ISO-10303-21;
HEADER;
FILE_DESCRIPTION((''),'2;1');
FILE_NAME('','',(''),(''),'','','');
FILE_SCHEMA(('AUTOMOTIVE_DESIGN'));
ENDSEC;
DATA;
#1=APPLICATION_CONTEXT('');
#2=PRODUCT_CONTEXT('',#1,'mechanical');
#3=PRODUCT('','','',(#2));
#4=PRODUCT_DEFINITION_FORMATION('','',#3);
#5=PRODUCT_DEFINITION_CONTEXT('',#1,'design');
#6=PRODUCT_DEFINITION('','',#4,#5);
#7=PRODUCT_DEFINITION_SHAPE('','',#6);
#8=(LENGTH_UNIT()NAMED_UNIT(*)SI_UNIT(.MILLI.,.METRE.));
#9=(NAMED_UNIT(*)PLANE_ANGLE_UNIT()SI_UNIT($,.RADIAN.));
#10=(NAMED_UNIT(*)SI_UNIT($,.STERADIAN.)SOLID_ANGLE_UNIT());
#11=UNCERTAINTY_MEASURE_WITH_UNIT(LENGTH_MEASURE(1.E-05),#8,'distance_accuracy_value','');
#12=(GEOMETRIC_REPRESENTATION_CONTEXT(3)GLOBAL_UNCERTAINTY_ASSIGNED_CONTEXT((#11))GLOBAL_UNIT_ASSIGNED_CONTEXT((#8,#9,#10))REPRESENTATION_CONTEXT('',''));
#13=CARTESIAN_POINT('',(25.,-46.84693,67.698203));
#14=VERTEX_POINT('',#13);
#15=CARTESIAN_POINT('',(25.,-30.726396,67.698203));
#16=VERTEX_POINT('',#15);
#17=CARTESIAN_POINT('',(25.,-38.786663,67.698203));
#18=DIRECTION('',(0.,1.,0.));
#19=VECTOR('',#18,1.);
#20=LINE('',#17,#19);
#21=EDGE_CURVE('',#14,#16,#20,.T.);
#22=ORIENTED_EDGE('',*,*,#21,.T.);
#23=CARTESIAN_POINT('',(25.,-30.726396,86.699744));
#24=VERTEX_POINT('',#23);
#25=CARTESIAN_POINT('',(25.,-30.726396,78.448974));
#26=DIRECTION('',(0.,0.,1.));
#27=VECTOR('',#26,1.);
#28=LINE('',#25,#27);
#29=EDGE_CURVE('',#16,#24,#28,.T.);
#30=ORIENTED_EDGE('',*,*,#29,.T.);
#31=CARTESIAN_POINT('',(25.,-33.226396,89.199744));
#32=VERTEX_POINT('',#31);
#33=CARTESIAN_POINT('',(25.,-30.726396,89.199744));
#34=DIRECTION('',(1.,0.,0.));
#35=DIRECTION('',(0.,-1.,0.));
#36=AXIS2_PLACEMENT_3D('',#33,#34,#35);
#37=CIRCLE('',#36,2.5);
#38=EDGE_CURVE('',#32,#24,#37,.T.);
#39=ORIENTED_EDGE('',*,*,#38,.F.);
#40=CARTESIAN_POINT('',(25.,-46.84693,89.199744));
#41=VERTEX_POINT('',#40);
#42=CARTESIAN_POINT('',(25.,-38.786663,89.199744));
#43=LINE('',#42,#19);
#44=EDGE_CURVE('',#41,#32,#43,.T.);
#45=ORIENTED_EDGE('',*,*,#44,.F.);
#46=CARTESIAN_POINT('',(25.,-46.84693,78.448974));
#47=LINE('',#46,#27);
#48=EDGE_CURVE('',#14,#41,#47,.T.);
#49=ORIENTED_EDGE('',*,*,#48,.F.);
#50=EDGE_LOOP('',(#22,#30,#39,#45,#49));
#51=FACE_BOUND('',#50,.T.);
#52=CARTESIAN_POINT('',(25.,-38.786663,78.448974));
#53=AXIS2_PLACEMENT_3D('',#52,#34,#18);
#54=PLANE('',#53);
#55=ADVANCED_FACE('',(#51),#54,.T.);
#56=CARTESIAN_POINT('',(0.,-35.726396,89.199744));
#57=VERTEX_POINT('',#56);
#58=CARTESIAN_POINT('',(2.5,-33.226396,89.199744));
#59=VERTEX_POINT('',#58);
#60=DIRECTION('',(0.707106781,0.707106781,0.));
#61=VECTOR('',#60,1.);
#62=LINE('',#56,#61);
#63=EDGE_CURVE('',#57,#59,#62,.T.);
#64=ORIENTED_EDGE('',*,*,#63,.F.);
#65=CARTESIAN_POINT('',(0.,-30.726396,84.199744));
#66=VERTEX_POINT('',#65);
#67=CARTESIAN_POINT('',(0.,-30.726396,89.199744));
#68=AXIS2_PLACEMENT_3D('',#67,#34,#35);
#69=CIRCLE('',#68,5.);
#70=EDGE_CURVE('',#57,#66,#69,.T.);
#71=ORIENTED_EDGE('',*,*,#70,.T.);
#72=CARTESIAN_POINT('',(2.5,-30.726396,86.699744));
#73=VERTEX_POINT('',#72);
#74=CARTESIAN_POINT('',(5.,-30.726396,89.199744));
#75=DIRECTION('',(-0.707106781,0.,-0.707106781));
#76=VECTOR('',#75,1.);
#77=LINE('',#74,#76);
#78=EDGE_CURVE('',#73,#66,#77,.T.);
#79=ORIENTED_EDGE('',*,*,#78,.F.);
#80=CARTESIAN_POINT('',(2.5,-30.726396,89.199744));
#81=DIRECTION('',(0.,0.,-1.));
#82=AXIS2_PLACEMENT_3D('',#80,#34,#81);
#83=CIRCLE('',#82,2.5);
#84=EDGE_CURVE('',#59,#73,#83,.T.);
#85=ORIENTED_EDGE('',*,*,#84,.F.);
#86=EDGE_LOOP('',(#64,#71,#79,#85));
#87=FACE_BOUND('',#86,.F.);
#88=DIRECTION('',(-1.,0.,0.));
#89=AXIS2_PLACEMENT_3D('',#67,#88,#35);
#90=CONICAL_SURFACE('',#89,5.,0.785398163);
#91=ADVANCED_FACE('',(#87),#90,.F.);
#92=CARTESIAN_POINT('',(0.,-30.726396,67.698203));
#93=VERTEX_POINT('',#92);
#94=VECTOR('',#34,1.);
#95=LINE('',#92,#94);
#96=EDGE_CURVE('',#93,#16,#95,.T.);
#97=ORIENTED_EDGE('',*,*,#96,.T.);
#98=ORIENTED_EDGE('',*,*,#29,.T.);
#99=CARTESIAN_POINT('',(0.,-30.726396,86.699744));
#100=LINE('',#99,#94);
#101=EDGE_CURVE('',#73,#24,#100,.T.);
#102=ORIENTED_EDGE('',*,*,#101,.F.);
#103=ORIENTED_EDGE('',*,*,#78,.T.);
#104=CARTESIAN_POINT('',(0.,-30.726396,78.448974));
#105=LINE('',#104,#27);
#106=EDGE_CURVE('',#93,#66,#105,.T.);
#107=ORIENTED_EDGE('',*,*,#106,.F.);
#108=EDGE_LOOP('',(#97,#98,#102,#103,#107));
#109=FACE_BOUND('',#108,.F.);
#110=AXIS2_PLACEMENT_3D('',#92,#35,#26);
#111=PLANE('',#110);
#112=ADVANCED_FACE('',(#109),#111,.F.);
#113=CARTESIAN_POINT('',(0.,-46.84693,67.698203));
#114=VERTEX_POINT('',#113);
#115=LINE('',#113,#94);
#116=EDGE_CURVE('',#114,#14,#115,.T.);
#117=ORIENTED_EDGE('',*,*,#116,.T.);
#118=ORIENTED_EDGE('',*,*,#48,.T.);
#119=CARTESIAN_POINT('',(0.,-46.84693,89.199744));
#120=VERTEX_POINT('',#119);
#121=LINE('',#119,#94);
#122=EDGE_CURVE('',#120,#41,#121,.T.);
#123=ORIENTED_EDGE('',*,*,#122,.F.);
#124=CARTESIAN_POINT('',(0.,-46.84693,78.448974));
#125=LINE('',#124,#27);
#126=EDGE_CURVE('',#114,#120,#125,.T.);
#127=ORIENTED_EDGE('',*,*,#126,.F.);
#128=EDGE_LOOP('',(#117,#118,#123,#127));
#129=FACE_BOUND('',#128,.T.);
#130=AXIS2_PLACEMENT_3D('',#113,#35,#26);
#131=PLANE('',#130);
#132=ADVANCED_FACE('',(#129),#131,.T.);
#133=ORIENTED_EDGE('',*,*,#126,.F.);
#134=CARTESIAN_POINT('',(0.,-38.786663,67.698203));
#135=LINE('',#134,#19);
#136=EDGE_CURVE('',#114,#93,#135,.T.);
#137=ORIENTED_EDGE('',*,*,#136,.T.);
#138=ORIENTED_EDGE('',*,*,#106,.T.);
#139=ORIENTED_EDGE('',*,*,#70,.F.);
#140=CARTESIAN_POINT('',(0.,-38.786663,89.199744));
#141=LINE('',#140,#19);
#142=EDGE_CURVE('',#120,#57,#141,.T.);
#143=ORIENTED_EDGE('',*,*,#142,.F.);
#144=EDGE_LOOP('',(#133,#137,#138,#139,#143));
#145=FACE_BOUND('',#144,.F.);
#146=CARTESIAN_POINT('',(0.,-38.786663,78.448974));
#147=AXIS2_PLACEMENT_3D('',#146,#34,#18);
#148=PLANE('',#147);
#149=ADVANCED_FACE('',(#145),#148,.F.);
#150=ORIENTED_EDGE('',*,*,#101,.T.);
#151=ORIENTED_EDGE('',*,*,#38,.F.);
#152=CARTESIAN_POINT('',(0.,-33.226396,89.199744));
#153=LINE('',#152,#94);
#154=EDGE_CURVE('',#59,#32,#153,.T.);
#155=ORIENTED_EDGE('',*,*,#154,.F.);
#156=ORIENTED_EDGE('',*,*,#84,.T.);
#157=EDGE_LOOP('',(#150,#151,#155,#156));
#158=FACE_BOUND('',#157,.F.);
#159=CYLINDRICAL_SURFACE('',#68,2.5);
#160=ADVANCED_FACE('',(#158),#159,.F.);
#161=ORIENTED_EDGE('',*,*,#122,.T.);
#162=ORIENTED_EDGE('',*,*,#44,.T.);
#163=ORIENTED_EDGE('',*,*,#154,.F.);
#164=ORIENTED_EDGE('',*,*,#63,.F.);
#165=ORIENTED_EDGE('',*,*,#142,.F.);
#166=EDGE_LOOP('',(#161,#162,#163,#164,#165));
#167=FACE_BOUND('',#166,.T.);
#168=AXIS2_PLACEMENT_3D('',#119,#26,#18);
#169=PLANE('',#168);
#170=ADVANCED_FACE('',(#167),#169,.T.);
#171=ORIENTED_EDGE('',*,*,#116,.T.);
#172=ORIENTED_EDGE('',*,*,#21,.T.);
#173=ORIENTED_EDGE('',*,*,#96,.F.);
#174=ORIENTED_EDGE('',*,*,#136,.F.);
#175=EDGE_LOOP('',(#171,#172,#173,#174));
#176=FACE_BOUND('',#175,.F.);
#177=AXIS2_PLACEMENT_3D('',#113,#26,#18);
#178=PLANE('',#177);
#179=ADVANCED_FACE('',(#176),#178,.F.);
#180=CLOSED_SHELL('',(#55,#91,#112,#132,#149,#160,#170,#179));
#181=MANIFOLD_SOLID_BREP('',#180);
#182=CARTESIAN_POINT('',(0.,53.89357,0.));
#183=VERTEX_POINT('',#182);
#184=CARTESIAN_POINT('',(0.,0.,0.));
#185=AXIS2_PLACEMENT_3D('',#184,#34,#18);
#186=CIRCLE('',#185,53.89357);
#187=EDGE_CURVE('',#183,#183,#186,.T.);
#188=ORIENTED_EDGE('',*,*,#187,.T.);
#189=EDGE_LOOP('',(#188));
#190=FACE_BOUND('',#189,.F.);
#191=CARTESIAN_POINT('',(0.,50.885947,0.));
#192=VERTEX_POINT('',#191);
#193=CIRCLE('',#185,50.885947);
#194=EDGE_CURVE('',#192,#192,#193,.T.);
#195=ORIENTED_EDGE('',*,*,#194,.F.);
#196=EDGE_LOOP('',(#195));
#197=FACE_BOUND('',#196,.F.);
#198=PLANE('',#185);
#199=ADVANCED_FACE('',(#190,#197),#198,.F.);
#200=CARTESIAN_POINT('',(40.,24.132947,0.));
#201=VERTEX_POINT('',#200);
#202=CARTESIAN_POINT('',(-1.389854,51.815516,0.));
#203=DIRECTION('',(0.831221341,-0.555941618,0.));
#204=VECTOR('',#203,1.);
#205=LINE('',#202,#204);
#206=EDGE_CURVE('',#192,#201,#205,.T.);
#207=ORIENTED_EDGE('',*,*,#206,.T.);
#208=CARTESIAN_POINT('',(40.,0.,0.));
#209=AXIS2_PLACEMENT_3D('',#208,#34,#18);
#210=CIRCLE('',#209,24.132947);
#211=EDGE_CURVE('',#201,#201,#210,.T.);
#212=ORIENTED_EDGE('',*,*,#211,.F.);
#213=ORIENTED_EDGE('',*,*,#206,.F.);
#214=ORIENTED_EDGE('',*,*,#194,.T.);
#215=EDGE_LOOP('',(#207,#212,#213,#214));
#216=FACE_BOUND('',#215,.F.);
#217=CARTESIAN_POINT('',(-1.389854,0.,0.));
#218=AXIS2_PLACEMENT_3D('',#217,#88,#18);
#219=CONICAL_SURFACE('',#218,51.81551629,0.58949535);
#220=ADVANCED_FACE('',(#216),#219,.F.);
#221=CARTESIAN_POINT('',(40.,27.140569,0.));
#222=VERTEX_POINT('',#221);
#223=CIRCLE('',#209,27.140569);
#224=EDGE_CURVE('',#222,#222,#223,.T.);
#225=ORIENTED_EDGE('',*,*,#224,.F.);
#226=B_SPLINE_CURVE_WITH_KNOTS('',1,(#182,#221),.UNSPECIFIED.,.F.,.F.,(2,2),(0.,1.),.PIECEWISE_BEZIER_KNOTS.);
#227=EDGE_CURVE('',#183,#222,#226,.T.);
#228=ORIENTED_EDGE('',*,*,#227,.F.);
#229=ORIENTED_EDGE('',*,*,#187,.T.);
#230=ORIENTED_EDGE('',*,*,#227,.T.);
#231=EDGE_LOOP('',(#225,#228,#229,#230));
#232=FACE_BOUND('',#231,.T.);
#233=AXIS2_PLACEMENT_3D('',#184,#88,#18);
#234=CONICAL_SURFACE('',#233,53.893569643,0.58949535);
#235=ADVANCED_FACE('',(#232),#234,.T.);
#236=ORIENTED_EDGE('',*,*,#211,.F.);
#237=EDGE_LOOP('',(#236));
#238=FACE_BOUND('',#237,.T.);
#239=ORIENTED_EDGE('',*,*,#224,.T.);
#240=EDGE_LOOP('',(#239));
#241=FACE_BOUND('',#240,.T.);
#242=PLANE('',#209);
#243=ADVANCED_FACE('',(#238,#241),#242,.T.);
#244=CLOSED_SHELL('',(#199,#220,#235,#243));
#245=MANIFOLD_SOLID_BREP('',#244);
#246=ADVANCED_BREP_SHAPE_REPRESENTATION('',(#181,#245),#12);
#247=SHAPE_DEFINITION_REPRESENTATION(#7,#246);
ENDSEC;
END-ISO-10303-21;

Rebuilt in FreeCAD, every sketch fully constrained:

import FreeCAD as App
import Part
import Sketcher
Q = App.Units.Quantity


def faces_at(feature, points):
    """Names of the faces that lie closest to the given points."""
    faces = feature.Shape.Faces
    near = lambda p: min(range(len(faces)), key=lambda i: faces[i].distToShape(Part.Vertex(*p))[0])
    return sorted({f"Face{near(p) + 1}" for p in points})

doc = App.newDocument("Part")
body = doc.addObject("PartDesign::Body", "Body")

# Sketch on YZ plane
sketch1 = doc.addObject("Sketcher::SketchObject", "Sketch")
body.addObject(sketch1)
sketch1.AttachmentSupport = (doc.YZ_Plane, [""])
sketch1.MapMode = "FlatFace"
sketch1.addGeometry(Part.Circle(App.Vector(0, 0, 0), App.Vector(0, 0, 1), 54), False)
sketch1.addConstraint([
    Sketcher.Constraint("Coincident", 0, 3, -1, 1),
    Sketcher.Constraint("Diameter", 0, Q("107.787139 mm")),
])

# Sketch on YZ plane
sketch2 = doc.addObject("Sketcher::SketchObject", "Sketch001")
body.addObject(sketch2)
sketch2.AttachmentSupport = (doc.YZ_Plane, [""])
sketch2.MapMode = "FlatFace"
sketch2.AttachmentOffset = App.Placement(App.Vector(0, 0, 40), App.Rotation())
sketch2.addGeometry(Part.Circle(App.Vector(0, 0, 0), App.Vector(0, 0, 1), 27), False)
sketch2.addConstraint([
    Sketcher.Constraint("Coincident", 0, 3, -1, 1),
    Sketcher.Constraint("Diameter", 0, Q("54.281139 mm")),
])

additiveloft = doc.addObject("PartDesign::AdditiveLoft", "AdditiveLoft")
body.addObject(additiveloft)
additiveloft.Profile = sketch1
additiveloft.Sections = [sketch2]
doc.recompute()

thickness = doc.addObject("PartDesign::Thickness", "Thickness")
body.addObject(thickness)
thickness.Base = (additiveloft, faces_at(additiveloft, [(40, 0, 0), (0, 0, 0)]))
thickness.Value = 2.5
thickness.Reversed = True
thickness.Join = "Intersection"
body2 = doc.addObject("PartDesign::Body", "Body001")

# Sketch on YZ plane
sketch3 = doc.addObject("Sketcher::SketchObject", "Sketch002")
body2.addObject(sketch3)
sketch3.AttachmentSupport = (doc.getObject("YZ_Plane001"), [""])
sketch3.MapMode = "FlatFace"
sketch3.addGeometry([
    Part.LineSegment(App.Vector(-47, 89, 0), App.Vector(-47, 68, 0)),
    Part.LineSegment(App.Vector(-47, 68, 0), App.Vector(-31, 68, 0)),
    Part.LineSegment(App.Vector(-31, 68, 0), App.Vector(-31, 89, 0)),
    Part.LineSegment(App.Vector(-31, 89, 0), App.Vector(-47, 89, 0)),
], False)
sketch3.addConstraint([
    Sketcher.Constraint("Coincident", 0, 2, 1, 1),
    Sketcher.Constraint("Coincident", 1, 2, 2, 1),
    Sketcher.Constraint("Coincident", 2, 2, 3, 1),
    Sketcher.Constraint("Coincident", 3, 2, 0, 1),
    Sketcher.Constraint("Vertical", 0),
    Sketcher.Constraint("Horizontal", 1),
    Sketcher.Constraint("Vertical", 2),
    Sketcher.Constraint("Horizontal", 3),
    Sketcher.Constraint("DistanceY", 0, 2, 0, 1, Q("21.501541 mm")),
    Sketcher.Constraint("DistanceX", 1, 1, 1, 2, Q("16.120534 mm")),
    Sketcher.Constraint("DistanceX", 0, 2, -1, 1, Q("46.84693 mm")),
    Sketcher.Constraint("DistanceY", -1, 1, 0, 2, Q("67.698203 mm")),
])
pad1 = doc.addObject("PartDesign::Pad", "Pad")
body2.addObject(pad1)
pad1.Profile = sketch3
pad1.Length = 25

# Sketch on YZ plane
sketch4 = doc.addObject("Sketcher::SketchObject", "Sketch003")
body2.addObject(sketch4)
sketch4.AttachmentSupport = (doc.getObject("YZ_Plane001"), [""])
sketch4.MapMode = "FlatFace"
sketch4.addGeometry(Part.Circle(App.Vector(-30.7, 89.2, 0), App.Vector(0, 0, 1), 2.5), False)
sketch4.addConstraint([
    Sketcher.Constraint("Diameter", 0, Q("5 mm")),
    Sketcher.Constraint("DistanceX", 0, 3, -1, 1, Q("30.726396 mm")),
    Sketcher.Constraint("DistanceY", -1, 1, 0, 3, Q("89.199744 mm")),
])
doc.recompute()
hole = doc.addObject("PartDesign::Hole", "Hole")
body2.addObject(hole)
hole.Profile = sketch4
hole.ThreadType = "None"
hole.Diameter = 5
hole.DepthType = "ThroughAll"
hole.HoleCutType = "Countersink"
hole.HoleCutDiameter = 10
hole.HoleCutCountersinkAngle = 90
hole.Reversed = True

doc.recompute()
